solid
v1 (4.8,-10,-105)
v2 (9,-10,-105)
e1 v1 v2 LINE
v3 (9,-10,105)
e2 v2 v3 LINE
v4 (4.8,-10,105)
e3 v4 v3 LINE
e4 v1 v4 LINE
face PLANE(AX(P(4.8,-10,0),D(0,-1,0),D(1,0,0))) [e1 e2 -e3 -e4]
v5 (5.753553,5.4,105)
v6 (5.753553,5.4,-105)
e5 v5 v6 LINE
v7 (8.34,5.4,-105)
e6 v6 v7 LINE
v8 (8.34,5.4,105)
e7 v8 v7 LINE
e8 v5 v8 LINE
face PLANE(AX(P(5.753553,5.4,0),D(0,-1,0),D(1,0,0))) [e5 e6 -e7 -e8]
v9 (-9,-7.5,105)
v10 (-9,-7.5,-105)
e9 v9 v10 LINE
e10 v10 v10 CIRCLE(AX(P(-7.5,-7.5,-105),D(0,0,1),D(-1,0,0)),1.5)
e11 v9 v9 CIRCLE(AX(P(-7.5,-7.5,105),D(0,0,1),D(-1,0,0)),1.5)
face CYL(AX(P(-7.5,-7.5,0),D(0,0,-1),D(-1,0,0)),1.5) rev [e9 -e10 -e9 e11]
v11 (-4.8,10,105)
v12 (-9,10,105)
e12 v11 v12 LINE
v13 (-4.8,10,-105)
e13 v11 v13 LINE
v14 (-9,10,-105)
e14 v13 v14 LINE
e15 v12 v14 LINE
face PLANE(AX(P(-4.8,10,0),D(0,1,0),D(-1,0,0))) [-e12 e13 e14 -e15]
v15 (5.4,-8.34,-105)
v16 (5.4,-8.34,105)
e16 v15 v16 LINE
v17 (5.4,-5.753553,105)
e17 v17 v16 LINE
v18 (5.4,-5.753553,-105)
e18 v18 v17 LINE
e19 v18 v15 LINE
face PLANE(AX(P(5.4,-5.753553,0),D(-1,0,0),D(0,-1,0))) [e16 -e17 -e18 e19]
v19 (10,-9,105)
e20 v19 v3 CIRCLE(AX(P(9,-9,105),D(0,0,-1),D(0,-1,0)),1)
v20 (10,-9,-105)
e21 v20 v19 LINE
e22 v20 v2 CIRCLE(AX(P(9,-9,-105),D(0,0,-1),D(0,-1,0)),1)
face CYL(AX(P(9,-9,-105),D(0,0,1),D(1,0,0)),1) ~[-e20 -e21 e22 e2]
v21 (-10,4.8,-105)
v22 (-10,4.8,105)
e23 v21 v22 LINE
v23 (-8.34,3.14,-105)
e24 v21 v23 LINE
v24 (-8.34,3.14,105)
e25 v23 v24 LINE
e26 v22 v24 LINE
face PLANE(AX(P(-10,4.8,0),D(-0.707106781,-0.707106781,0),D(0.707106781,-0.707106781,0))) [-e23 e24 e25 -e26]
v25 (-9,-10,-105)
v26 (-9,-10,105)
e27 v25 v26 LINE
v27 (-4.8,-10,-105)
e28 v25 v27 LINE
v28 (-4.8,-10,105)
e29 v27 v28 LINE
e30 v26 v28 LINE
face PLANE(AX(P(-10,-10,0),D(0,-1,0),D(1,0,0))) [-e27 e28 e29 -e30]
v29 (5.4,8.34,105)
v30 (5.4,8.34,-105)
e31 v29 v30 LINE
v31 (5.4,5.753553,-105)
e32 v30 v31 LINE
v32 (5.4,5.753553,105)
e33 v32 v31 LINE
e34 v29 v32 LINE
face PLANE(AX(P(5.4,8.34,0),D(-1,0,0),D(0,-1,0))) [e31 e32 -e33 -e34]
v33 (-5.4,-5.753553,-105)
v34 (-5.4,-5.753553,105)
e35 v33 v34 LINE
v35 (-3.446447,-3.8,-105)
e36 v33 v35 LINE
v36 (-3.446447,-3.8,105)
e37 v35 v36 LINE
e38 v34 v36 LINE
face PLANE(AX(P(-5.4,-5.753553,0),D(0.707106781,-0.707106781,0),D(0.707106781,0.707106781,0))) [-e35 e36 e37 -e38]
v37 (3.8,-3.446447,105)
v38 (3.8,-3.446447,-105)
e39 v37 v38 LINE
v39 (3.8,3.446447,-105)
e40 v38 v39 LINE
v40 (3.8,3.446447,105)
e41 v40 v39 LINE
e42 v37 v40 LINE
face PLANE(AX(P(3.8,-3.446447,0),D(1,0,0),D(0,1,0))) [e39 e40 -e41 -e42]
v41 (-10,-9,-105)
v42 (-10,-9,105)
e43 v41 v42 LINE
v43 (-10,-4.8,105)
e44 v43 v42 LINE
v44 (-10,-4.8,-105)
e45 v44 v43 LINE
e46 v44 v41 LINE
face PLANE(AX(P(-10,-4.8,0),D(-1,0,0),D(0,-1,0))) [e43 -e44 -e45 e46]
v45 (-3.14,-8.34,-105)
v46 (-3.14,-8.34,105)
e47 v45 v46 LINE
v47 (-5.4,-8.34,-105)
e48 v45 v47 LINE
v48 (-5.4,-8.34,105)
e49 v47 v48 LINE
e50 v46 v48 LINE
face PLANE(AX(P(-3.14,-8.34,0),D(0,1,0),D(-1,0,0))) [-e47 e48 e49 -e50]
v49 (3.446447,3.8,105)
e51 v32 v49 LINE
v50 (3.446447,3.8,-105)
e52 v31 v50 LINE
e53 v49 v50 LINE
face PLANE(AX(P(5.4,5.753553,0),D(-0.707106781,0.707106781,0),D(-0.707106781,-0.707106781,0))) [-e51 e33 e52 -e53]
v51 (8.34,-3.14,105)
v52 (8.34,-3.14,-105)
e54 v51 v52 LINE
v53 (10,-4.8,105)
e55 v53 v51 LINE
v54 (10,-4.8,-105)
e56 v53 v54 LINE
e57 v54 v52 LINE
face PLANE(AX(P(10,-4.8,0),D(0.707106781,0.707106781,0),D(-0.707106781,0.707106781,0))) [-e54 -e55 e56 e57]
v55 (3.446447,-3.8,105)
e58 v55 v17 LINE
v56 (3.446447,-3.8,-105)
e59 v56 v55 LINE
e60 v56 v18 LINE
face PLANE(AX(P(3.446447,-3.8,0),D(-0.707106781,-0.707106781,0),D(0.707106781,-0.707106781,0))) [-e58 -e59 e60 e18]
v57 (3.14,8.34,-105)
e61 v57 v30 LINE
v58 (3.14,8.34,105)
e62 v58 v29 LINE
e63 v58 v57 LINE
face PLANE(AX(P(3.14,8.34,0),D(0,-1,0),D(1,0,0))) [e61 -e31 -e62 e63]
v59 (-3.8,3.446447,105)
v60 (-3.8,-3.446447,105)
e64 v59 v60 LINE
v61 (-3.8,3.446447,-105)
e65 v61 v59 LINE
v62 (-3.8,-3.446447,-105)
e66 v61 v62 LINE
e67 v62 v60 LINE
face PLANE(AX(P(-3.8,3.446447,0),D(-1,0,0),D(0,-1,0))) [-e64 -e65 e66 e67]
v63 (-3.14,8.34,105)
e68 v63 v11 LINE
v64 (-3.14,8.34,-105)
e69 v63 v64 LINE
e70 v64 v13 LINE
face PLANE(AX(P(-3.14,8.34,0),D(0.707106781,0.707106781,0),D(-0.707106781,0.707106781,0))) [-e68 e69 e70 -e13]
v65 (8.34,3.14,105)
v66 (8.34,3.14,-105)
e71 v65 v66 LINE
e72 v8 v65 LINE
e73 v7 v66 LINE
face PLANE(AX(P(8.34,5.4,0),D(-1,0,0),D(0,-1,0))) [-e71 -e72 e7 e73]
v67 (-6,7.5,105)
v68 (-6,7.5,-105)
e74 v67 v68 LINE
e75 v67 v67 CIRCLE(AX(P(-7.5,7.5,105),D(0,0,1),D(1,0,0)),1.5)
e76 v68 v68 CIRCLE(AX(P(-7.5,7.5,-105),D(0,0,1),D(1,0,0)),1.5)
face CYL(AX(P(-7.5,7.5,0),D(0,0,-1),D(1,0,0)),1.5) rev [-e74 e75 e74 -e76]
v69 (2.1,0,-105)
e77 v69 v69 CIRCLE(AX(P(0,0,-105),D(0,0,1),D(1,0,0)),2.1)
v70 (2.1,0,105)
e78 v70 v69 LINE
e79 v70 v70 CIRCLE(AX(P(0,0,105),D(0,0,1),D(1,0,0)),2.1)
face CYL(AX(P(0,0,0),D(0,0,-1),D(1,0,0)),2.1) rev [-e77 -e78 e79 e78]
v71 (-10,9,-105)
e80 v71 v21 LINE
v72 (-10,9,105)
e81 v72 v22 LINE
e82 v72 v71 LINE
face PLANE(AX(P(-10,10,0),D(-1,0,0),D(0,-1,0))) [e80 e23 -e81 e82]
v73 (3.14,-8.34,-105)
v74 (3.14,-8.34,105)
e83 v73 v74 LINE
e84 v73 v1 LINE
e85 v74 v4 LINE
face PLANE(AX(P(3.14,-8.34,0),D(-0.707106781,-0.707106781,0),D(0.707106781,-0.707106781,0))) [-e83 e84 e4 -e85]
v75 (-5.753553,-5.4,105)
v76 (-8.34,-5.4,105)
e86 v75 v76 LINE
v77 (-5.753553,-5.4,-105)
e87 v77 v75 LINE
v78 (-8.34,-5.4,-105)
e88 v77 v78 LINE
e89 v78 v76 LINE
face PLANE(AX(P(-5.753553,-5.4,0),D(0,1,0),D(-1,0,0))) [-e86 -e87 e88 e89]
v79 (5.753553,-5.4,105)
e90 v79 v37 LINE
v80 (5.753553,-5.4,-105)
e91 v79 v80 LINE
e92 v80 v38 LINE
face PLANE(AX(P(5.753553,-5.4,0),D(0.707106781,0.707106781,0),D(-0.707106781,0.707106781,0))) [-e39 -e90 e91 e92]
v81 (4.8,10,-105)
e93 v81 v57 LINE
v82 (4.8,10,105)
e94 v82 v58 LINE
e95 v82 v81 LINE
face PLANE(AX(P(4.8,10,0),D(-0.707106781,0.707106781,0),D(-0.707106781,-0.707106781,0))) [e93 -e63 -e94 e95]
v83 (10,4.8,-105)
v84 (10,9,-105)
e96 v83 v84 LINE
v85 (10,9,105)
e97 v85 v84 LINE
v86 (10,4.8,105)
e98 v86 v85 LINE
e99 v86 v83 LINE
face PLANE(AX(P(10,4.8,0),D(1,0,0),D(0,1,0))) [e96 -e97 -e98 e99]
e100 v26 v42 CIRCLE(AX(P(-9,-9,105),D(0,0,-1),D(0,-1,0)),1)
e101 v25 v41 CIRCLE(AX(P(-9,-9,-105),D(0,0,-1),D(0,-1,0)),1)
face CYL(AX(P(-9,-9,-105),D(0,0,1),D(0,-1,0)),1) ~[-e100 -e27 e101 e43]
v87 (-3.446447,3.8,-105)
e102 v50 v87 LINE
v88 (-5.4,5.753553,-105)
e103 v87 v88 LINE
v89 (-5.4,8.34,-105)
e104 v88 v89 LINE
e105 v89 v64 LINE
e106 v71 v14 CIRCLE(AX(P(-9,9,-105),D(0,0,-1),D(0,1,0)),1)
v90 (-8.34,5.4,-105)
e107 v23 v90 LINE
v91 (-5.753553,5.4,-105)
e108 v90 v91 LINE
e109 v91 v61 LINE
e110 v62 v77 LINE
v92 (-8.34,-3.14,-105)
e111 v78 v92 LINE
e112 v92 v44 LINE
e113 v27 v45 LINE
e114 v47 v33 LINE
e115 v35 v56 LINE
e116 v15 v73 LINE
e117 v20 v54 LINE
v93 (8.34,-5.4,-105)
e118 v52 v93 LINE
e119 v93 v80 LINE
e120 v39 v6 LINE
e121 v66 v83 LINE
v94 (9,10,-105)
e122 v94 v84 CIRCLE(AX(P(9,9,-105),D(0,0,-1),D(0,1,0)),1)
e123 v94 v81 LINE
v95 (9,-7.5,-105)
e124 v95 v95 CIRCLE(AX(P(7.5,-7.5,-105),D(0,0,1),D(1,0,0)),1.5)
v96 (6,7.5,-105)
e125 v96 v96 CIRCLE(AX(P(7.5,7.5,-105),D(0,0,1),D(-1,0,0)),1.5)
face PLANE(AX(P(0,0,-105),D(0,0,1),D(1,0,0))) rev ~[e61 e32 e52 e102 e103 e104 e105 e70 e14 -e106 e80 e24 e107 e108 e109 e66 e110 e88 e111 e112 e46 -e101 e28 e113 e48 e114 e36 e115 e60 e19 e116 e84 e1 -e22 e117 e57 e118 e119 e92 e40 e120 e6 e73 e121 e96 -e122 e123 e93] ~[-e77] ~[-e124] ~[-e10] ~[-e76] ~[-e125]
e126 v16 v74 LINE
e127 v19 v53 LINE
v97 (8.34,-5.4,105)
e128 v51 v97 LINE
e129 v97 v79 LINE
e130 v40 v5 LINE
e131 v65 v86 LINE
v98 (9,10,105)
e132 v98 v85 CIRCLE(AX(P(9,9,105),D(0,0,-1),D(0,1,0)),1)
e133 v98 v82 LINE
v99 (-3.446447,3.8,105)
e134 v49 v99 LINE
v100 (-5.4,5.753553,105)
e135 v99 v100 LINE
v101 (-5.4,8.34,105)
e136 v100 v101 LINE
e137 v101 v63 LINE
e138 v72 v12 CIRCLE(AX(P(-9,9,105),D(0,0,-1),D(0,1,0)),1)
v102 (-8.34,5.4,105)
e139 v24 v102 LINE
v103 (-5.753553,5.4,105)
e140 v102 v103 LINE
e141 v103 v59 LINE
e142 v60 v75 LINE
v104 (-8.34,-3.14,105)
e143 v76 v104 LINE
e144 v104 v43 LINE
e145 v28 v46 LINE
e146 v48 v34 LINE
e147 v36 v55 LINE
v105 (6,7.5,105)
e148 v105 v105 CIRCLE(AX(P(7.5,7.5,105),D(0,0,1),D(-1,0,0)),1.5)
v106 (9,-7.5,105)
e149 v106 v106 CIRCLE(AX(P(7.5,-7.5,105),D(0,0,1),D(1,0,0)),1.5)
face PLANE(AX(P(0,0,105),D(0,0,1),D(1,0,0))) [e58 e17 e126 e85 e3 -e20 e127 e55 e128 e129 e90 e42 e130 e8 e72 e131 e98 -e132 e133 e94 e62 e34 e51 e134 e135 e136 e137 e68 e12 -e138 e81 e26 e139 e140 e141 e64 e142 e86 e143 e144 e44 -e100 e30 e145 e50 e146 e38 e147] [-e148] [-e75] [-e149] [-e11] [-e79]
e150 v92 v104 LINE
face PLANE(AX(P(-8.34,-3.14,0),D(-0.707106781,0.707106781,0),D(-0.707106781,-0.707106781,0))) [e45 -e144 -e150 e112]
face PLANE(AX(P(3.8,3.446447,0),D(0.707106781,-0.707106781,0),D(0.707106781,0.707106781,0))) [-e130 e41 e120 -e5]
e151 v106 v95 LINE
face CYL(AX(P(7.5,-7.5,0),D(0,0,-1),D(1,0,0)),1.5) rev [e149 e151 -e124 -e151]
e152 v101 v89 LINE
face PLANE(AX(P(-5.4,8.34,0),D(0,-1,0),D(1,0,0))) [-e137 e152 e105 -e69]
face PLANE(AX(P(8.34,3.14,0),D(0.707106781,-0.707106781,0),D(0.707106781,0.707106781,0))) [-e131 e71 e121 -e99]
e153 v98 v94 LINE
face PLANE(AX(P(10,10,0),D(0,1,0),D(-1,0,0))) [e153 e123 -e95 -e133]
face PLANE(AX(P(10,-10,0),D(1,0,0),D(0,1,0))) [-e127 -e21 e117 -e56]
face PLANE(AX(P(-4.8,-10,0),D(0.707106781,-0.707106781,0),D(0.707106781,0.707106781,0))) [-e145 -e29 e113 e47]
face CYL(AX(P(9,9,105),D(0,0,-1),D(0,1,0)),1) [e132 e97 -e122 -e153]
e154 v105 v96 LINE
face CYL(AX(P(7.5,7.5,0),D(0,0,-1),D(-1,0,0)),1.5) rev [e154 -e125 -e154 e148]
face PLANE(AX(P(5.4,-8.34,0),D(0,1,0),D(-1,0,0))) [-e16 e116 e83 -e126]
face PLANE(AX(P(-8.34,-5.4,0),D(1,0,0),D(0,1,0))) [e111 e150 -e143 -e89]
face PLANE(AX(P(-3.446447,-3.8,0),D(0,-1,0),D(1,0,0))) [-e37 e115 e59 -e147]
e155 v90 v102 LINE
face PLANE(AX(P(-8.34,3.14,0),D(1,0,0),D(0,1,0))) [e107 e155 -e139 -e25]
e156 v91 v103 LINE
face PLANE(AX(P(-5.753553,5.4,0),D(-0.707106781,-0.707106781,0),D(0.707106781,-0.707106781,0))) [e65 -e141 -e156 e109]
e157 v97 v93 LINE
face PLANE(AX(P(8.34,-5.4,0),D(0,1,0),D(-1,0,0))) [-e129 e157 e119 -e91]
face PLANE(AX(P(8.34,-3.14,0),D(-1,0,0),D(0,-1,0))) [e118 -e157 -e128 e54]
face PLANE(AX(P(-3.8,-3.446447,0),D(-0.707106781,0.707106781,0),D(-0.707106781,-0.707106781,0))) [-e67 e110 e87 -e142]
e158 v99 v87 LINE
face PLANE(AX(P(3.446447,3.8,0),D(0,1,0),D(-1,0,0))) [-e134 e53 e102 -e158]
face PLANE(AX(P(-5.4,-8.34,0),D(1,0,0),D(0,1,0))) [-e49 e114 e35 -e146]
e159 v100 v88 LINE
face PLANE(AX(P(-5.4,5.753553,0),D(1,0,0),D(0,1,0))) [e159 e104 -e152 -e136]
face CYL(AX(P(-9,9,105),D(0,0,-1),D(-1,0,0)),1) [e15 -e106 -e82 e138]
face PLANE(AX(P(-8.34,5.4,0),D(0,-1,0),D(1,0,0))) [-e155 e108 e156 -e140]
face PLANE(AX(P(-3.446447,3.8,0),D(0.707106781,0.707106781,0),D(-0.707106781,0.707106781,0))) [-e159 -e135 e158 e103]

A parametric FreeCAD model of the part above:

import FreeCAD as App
import Part
import Sketcher


def edges_at(feature, points):
    """Names of the edges that pass closest to the given points."""
    edges = feature.Shape.Edges
    near = lambda p: min(range(len(edges)), key=lambda i: edges[i].distToShape(Part.Vertex(*p))[0])
    return sorted({f"Edge{near(p) + 1}" for p in points})

doc = App.newDocument("Part")
body = doc.addObject("PartDesign::Body", "Body")

sketch1 = body.newObject("Sketcher::SketchObject", "Sketch")
sketch1.AttachmentSupport = (doc.getObject("XY_Plane"), [""])
sketch1.MapMode = "FlatFace"
sketch1.addGeometry([
    Part.LineSegment(App.Vector(-10, 10, 0), App.Vector(-10, 4.8, 0)),
    Part.LineSegment(App.Vector(-10, 4.8, 0), App.Vector(-8.34, 3.14, 0)),
    Part.LineSegment(App.Vector(-8.34, 3.14, 0), App.Vector(-8.34, 5.4, 0)),
    Part.LineSegment(App.Vector(-8.34, 5.4, 0), App.Vector(-5.753553, 5.4, 0)),
    Part.LineSegment(App.Vector(-5.753553, 5.4, 0), App.Vector(-3.8, 3.446447, 0)),
    Part.LineSegment(App.Vector(-3.8, 3.446447, 0), App.Vector(-3.8, -3.446447, 0)),
    Part.LineSegment(App.Vector(-3.8, -3.446447, 0), App.Vector(-5.753553, -5.4, 0)),
    Part.LineSegment(App.Vector(-5.753553, -5.4, 0), App.Vector(-8.34, -5.4, 0)),
    Part.LineSegment(App.Vector(-8.34, -5.4, 0), App.Vector(-8.34, -3.14, 0)),
    Part.LineSegment(App.Vector(-8.34, -3.14, 0), App.Vector(-10, -4.8, 0)),
    Part.LineSegment(App.Vector(-10, -4.8, 0), App.Vector(-10, -10, 0)),
    Part.LineSegment(App.Vector(-10, -10, 0), App.Vector(-4.8, -10, 0)),
    Part.LineSegment(App.Vector(-4.8, -10, 0), App.Vector(-3.14, -8.34, 0)),
    Part.LineSegment(App.Vector(-3.14, -8.34, 0), App.Vector(-5.4, -8.34, 0)),
    Part.LineSegment(App.Vector(-5.4, -8.34, 0), App.Vector(-5.4, -5.753553, 0)),
    Part.LineSegment(App.Vector(-5.4, -5.753553, 0), App.Vector(-3.446447, -3.8, 0)),
    Part.LineSegment(App.Vector(-3.446447, -3.8, 0), App.Vector(3.446447, -3.8, 0)),
    Part.LineSegment(App.Vector(3.446447, -3.8, 0), App.Vector(5.4, -5.753553, 0)),
    Part.LineSegment(App.Vector(5.4, -5.753553, 0), App.Vector(5.4, -8.34, 0)),
    Part.LineSegment(App.Vector(5.4, -8.34, 0), App.Vector(3.14, -8.34, 0)),
    Part.LineSegment(App.Vector(3.14, -8.34, 0), App.Vector(4.8, -10, 0)),
    Part.LineSegment(App.Vector(4.8, -10, 0), App.Vector(10, -10, 0)),
    Part.LineSegment(App.Vector(10, -10, 0), App.Vector(10, -4.8, 0)),
    Part.LineSegment(App.Vector(10, -4.8, 0), App.Vector(8.34, -3.14, 0)),
    Part.LineSegment(App.Vector(8.34, -3.14, 0), App.Vector(8.34, -5.4, 0)),
    Part.LineSegment(App.Vector(8.34, -5.4, 0), App.Vector(5.753553, -5.4, 0)),
    Part.LineSegment(App.Vector(5.753553, -5.4, 0), App.Vector(3.8, -3.446447, 0)),
    Part.LineSegment(App.Vector(3.8, -3.446447, 0), App.Vector(3.8, 3.446447, 0)),
    Part.LineSegment(App.Vector(3.8, 3.446447, 0), App.Vector(5.753553, 5.4, 0)),
    Part.LineSegment(App.Vector(5.753553, 5.4, 0), App.Vector(8.34, 5.4, 0)),
    Part.LineSegment(App.Vector(8.34, 5.4, 0), App.Vector(8.34, 3.14, 0)),
    Part.LineSegment(App.Vector(8.34, 3.14, 0), App.Vector(10, 4.8, 0)),
    Part.LineSegment(App.Vector(10, 4.8, 0), App.Vector(10, 10, 0)),
    Part.LineSegment(App.Vector(10, 10, 0), App.Vector(4.8, 10, 0)),
    Part.LineSegment(App.Vector(4.8, 10, 0), App.Vector(3.14, 8.34, 0)),
    Part.LineSegment(App.Vector(3.14, 8.34, 0), App.Vector(5.4, 8.34, 0)),
    Part.LineSegment(App.Vector(5.4, 8.34, 0), App.Vector(5.4, 5.753553, 0)),
    Part.LineSegment(App.Vector(5.4, 5.753553, 0), App.Vector(3.446447, 3.8, 0)),
    Part.LineSegment(App.Vector(3.446447, 3.8, 0), App.Vector(-3.446447, 3.8, 0)),
    Part.LineSegment(App.Vector(-3.446447, 3.8, 0), App.Vector(-5.4, 5.753553, 0)),
    Part.LineSegment(App.Vector(-5.4, 5.753553, 0), App.Vector(-5.4, 8.34, 0)),
    Part.LineSegment(App.Vector(-5.4, 8.34, 0), App.Vector(-3.14, 8.34, 0)),
    Part.LineSegment(App.Vector(-3.14, 8.34, 0), App.Vector(-4.8, 10, 0)),
    Part.LineSegment(App.Vector(-4.8, 10, 0), App.Vector(-10, 10, 0)),
    Part.Circle(App.Vector(-7.5, -7.5, 0), App.Vector(0, 0, 1), 1.5),
    Part.Circle(App.Vector(7.5, -7.5, 0), App.Vector(0, 0, 1), 1.5),
    Part.Circle(App.Vector(-7.5, 7.5, 0), App.Vector(0, 0, 1), 1.5),
    Part.Circle(App.Vector(0, 0, 0), App.Vector(0, 0, 1), 2.1),
    Part.Circle(App.Vector(7.5, 7.5, 0), App.Vector(0, 0, 1), 1.5),
], False)
sketch1.addConstraint([
    Sketcher.Constraint("Coincident", 0, 2, 1, 1),
    Sketcher.Constraint("Coincident", 1, 2, 2, 1),
    Sketcher.Constraint("Coincident", 2, 2, 3, 1),
    Sketcher.Constraint("Coincident", 3, 2, 4, 1),
    Sketcher.Constraint("Coincident", 4, 2, 5, 1),
    Sketcher.Constraint("Coincident", 5, 2, 6, 1),
    Sketcher.Constraint("Coincident", 6, 2, 7, 1),
    Sketcher.Constraint("Coincident", 7, 2, 8, 1),
    Sketcher.Constraint("Coincident", 8, 2, 9, 1),
    Sketcher.Constraint("Coincident", 9, 2, 10, 1),
    Sketcher.Constraint("Coincident", 10, 2, 11, 1),
    Sketcher.Constraint("Coincident", 11, 2, 12, 1),
    Sketcher.Constraint("Coincident", 12, 2, 13, 1),
    Sketcher.Constraint("Coincident", 13, 2, 14, 1),
    Sketcher.Constraint("Coincident", 14, 2, 15, 1),
    Sketcher.Constraint("Coincident", 15, 2, 16, 1),
    Sketcher.Constraint("Coincident", 16, 2, 17, 1),
    Sketcher.Constraint("Coincident", 17, 2, 18, 1),
    Sketcher.Constraint("Coincident", 18, 2, 19, 1),
    Sketcher.Constraint("Coincident", 19, 2, 20, 1),
    Sketcher.Constraint("Coincident", 20, 2, 21, 1),
    Sketcher.Constraint("Coincident", 21, 2, 22, 1),
    Sketcher.Constraint("Coincident", 22, 2, 23, 1),
    Sketcher.Constraint("Coincident", 23, 2, 24, 1),
    Sketcher.Constraint("Coincident", 24, 2, 25, 1),
    Sketcher.Constraint("Coincident", 25, 2, 26, 1),
    Sketcher.Constraint("Coincident", 26, 2, 27, 1),
    Sketcher.Constraint("Coincident", 27, 2, 28, 1),
    Sketcher.Constraint("Coincident", 28, 2, 29, 1),
    Sketcher.Constraint("Coincident", 29, 2, 30, 1),
    Sketcher.Constraint("Coincident", 30, 2, 31, 1),
    Sketcher.Constraint("Coincident", 31, 2, 32, 1),
    Sketcher.Constraint("Coincident", 32, 2, 33, 1),
    Sketcher.Constraint("Coincident", 33, 2, 34, 1),
    Sketcher.Constraint("Coincident", 34, 2, 35, 1),
    Sketcher.Constraint("Coincident", 35, 2, 36, 1),
    Sketcher.Constraint("Coincident", 36, 2, 37, 1),
    Sketcher.Constraint("Coincident", 37, 2, 38, 1),
    Sketcher.Constraint("Coincident", 38, 2, 39, 1),
    Sketcher.Constraint("Coincident", 39, 2, 40, 1),
    Sketcher.Constraint("Coincident", 40, 2, 41, 1),
    Sketcher.Constraint("Coincident", 41, 2, 42, 1),
    Sketcher.Constraint("Coincident", 42, 2, 43, 1),
    Sketcher.Constraint("Coincident", 43, 2, 0, 1),
    Sketcher.Constraint("Vertical", 0),
    Sketcher.Constraint("Vertical", 2),
    Sketcher.Constraint("Horizontal", 3),
    Sketcher.Constraint("Vertical", 5),
    Sketcher.Constraint("Horizontal", 7),
    Sketcher.Constraint("Vertical", 8),
    Sketcher.Constraint("Vertical", 10),
    Sketcher.Constraint("Horizontal", 11),
    Sketcher.Constraint("Horizontal", 13),
    Sketcher.Constraint("Vertical", 14),
    Sketcher.Constraint("Horizontal", 16),
    Sketcher.Constraint("Vertical", 18),
    Sketcher.Constraint("Horizontal", 19),
    Sketcher.Constraint("Horizontal", 21),
    Sketcher.Constraint("Vertical", 22),
    Sketcher.Constraint("Vertical", 24),
    Sketcher.Constraint("Horizontal", 25),
    Sketcher.Constraint("Vertical", 27),
    Sketcher.Constraint("Horizontal", 29),
    Sketcher.Constraint("Vertical", 30),
    Sketcher.Constraint("Vertical", 32),
    Sketcher.Constraint("Horizontal", 33),
    Sketcher.Constraint("Horizontal", 35),
    Sketcher.Constraint("Vertical", 36),
    Sketcher.Constraint("Horizontal", 38),
    Sketcher.Constraint("Vertical", 40),
    Sketcher.Constraint("Horizontal", 41),
    Sketcher.Constraint("Horizontal", 43),
    Sketcher.Constraint("Coincident", 47, 3, -1, 1),
    Sketcher.Constraint("Equal", 44, 45),
    Sketcher.Constraint("Equal", 45, 46),
    Sketcher.Constraint("Equal", 46, 48),
    Sketcher.Constraint("Symmetric", 45, 3, 46, 3, -1, 1),
    Sketcher.Constraint("Symmetric", 44, 3, 48, 3, -1, 1),
    Sketcher.Constraint("Symmetric", 0, 2, 22, 2, -1, 1),
    Sketcher.Constraint("Symmetric", 1, 2, 23, 2, -1, 1),
    Sketcher.Constraint("Symmetric", 3, 2, 25, 2, -1, 1),
    Sketcher.Constraint("Symmetric", 4, 2, 26, 2, -1, 1),
    Sketcher.Constraint("Symmetric", 6, 2, 28, 2, -1, 1),
    Sketcher.Constraint("Symmetric", 8, 2, 30, 2, -1, 1),
    Sketcher.Constraint("Symmetric", 9, 2, 31, 2, -1, 1),
    Sketcher.Constraint("Symmetric", 11, 2, 33, 2, -1, 1),
    Sketcher.Constraint("Symmetric", 12, 2, 34, 2, -1, 1),
    Sketcher.Constraint("Symmetric", 14, 2, 36, 2, -1, 1),
    Sketcher.Constraint("Symmetric", 15, 2, 37, 2, -1, 1),
    Sketcher.Constraint("Symmetric", 17, 2, 39, 2, -1, 1),
    Sketcher.Constraint("Symmetric", 19, 2, 41, 2, -1, 1),
    Sketcher.Constraint("Symmetric", 20, 2, 42, 2, -1, 1),
    Sketcher.Constraint("Symmetric", 44, 3, 45, 3, -2),
    Sketcher.Constraint("Symmetric", 14, 2, 17, 2, -2),
    Sketcher.Constraint("Symmetric", 12, 2, 19, 2, -2),
    Sketcher.Constraint("Symmetric", 11, 2, 20, 2, -2),
    Sketcher.Constraint("Symmetric", 9, 2, 22, 2, -2),
    Sketcher.Constraint("Symmetric", 8, 2, 23, 2, -2),
    Sketcher.Constraint("Symmetric", 6, 2, 25, 2, -2),
    Sketcher.Constraint("Parallel", 1, 4),
    Sketcher.Constraint("Perpendicular", 4, 6),
    Sketcher.Constraint("Parallel", 6, 9),
    Sketcher.Constraint("Parallel", 9, 12),
    Sketcher.Constraint("Parallel", 12, 15),
    Sketcher.Constraint("Perpendicular", 15, 17),
    Sketcher.Constraint("Perpendicular", 26, 28),
    Sketcher.Constraint("Perpendicular", 37, 39),
    Sketcher.Constraint("Equal", 43, 0),
    Sketcher.Constraint("Equal", 41, 2),
    Sketcher.Constraint("Equal", 38, 5),
    Sketcher.Constraint("Equal", 29, 14),
    Sketcher.Constraint("Equal", 9, 12),
    Sketcher.Constraint("Equal", 6, 15),
    Sketcher.Constraint("Diameter", 44, 3.0),
    Sketcher.Constraint("Diameter", 47, 4.2),
    Sketcher.Constraint("DistanceX", 11, 1, 11, 2, 5.2),
    Sketcher.Constraint("DistanceX", 0, 2, -1, 1, 10.0),
    Sketcher.Constraint("DistanceX", 44, 3, 45, 3, 15.0),
    Sketcher.Constraint("DistanceY", 44, 3, 46, 3, 15.0),
    Sketcher.Constraint("DistanceX", 11, 2, 5, 2, 1.0),
    Sketcher.Constraint("DistanceX", 13, 2, 13, 1, 2.26),
    Sketcher.Constraint("DistanceY", -1, 1, 2, 2, 5.4),
    Sketcher.Constraint("Distance", 4, 2.762742),
])
pad1 = body.newObject("PartDesign::Pad", "Pad")
pad1.Profile = sketch1
pad1.Length = 210
pad1.Midplane = True
doc.recompute()

fillet = body.newObject("PartDesign::Fillet", "Fillet")
fillet.Base = (pad1, edges_at(pad1, [
    (10, 10, 0),
    (10, -10, 0),
    (-10, -10, 0),
    (-10, 10, 0),
]))
fillet.Radius = 1

doc.recompute()
